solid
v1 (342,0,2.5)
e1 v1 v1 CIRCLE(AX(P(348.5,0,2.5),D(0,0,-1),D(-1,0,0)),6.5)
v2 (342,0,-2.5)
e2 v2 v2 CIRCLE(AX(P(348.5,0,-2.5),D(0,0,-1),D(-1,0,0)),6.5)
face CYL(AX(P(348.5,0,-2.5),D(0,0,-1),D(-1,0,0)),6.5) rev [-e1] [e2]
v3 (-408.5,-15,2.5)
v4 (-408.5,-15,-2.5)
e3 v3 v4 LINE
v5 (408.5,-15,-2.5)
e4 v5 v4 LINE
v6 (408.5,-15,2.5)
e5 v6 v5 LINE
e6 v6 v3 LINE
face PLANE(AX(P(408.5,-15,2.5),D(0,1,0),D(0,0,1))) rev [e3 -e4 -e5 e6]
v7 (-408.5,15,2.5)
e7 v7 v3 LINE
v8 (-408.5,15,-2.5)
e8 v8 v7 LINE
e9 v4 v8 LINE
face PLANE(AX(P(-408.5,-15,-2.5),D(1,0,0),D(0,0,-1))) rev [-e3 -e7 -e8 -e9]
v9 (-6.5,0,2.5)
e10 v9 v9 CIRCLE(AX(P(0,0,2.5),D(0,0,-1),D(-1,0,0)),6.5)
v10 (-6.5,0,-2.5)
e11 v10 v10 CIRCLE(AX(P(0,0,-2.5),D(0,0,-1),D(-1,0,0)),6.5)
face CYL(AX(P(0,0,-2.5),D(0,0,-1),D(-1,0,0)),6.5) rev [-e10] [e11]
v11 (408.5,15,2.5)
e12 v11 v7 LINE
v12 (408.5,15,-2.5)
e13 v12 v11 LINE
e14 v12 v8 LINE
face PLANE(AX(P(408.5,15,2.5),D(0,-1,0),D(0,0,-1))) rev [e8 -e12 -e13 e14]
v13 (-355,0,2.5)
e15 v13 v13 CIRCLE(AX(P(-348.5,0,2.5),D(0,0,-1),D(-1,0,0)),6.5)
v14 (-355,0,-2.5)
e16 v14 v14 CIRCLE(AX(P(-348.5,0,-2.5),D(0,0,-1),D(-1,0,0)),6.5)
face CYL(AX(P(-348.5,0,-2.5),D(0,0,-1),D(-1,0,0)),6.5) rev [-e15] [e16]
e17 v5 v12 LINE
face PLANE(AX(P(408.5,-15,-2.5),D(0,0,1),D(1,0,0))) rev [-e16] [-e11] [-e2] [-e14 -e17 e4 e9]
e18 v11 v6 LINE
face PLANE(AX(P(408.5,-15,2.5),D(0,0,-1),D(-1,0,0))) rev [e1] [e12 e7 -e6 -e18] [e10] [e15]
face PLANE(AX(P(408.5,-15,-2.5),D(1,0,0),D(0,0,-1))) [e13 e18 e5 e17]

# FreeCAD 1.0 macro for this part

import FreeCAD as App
import Part
import Sketcher

V = App.Vector
Q = App.Units.Quantity

doc = App.newDocument("Part")
body = doc.addObject("PartDesign::Body", "Body")

# Sketch on YZ plane
sketch1 = body.newObject("Sketcher::SketchObject", "Sketch")
sketch1.AttachmentSupport = (doc.getObject("YZ_Plane"), [""])
sketch1.MapMode = "FlatFace"
sketch1.AttachmentOffset = App.Placement(V(0, 0, -408.5), App.Rotation())
sketch1.addGeometry([
    Part.LineSegment(V(-15, 2.5, 0), V(-15, -2.5, 0)),
    Part.LineSegment(V(-15, -2.5, 0), V(15, -2.5, 0)),
    Part.LineSegment(V(15, -2.5, 0), V(15, 2.5, 0)),
    Part.LineSegment(V(15, 2.5, 0), V(-15, 2.5, 0)),
], False)
sketch1.addConstraint([
    Sketcher.Constraint("Coincident", 0, 2, 1, 1),
    Sketcher.Constraint("Coincident", 1, 2, 2, 1),
    Sketcher.Constraint("Coincident", 2, 2, 3, 1),
    Sketcher.Constraint("Coincident", 3, 2, 0, 1),
    Sketcher.Constraint("Vertical", 0),
    Sketcher.Constraint("Horizontal", 1),
    Sketcher.Constraint("Vertical", 2),
    Sketcher.Constraint("Horizontal", 3),
    Sketcher.Constraint("Symmetric", 0, 2, 2, 2, -1, 1),
    Sketcher.Constraint("DistanceX", 1, 1, 1, 2, Q("30 mm")),
    Sketcher.Constraint("DistanceY", 0, 2, 0, 1, Q("5 mm")),
])
pad1 = body.newObject("PartDesign::Pad", "Pad")
pad1.Profile = sketch1
pad1.Length = 817

# Sketch on XY plane
sketch2 = body.newObject("Sketcher::SketchObject", "Sketch001")
sketch2.AttachmentSupport = (doc.getObject("XY_Plane"), [""])
sketch2.MapMode = "FlatFace"
sketch2.AttachmentOffset = App.Placement(V(0, 0, -2.5), App.Rotation())
sketch2.addGeometry(Part.Circle(V(-348.5, 0, 0), V(0, 0, 1), 6.5), False)
sketch2.addConstraint([
    Sketcher.Constraint("PointOnObject", 0, 3, -1),
    Sketcher.Constraint("Diameter", 0, Q("13 mm")),
    Sketcher.Constraint("DistanceX", 0, 3, -1, 1, Q("348.5 mm")),
])
doc.recompute()
hole = body.newObject("PartDesign::Hole", "Hole")
hole.Profile = sketch2
hole.ThreadType = "None"
hole.Diameter = 13
hole.DepthType = "ThroughAll"
hole.Reversed = True
doc.recompute()

linearpattern = body.newObject("PartDesign::LinearPattern", "LinearPattern")
linearpattern.Originals = [hole]
linearpattern.Direction = (doc.getObject("X_Axis"), [""])
linearpattern.Mode = "offset"
linearpattern.Offset = 348.5
linearpattern.Occurrences = 3
body.Tip = linearpattern

doc.recompute()
